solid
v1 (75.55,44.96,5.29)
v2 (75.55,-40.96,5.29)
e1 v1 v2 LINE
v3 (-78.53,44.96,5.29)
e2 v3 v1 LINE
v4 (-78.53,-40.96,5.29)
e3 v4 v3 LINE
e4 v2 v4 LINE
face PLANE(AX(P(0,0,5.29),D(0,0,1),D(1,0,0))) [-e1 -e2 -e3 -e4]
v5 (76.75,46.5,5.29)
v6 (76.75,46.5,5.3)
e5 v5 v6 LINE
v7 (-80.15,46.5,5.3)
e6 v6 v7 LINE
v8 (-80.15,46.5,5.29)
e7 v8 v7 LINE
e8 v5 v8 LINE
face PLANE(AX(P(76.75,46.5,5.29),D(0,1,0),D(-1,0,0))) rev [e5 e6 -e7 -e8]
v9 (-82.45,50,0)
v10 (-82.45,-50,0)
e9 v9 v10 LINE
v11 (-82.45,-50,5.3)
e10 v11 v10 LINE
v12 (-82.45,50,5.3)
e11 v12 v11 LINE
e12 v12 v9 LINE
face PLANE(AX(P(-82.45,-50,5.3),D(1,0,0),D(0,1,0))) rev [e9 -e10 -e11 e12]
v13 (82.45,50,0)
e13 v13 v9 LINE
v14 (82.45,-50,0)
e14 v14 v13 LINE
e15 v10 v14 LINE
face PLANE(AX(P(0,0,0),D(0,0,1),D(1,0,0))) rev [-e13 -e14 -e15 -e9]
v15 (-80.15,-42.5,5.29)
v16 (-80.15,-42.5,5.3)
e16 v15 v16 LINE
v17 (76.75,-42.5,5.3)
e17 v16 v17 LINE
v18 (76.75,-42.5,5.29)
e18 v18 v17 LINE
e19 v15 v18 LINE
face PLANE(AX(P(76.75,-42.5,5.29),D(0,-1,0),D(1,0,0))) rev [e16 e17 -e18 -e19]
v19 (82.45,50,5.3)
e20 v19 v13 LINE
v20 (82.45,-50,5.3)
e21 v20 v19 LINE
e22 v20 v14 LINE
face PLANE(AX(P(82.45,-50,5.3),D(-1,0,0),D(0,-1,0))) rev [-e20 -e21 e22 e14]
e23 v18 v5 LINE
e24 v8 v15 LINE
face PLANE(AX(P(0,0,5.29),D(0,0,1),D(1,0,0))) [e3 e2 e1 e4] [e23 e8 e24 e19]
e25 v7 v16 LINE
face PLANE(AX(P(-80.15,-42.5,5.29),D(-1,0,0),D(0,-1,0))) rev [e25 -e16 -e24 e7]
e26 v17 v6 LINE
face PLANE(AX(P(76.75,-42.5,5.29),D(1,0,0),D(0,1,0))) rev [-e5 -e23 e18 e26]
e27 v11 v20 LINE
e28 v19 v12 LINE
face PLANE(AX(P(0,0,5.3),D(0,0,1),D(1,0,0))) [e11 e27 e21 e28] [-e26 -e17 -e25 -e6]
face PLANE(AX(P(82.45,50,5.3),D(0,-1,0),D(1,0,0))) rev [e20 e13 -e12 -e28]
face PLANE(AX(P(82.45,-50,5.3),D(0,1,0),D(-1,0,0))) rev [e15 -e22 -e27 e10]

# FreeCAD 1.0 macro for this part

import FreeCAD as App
import Part
import Sketcher


def add_polygon(sketch, points):
    """Adds a closed chain of lines whose ends are joined by coincident constraints."""
    first, n = sketch.GeometryCount, len(points)
    for a, b in zip(points, points[1:] + points[:1]):
        sketch.addGeometry(Part.LineSegment(App.Vector(*a, 0), App.Vector(*b, 0)), False)
    for i in range(n):
        sketch.addConstraint(Sketcher.Constraint("Coincident", first + i, 2, first + (i + 1) % n, 1))

doc = App.newDocument("Part")
body = doc.addObject("PartDesign::Body", "Body")

# Sketch on XY plane
sketch1 = body.newObject("Sketcher::SketchObject", "Sketch")
sketch1.AttachmentSupport = (doc.getObject("XY_Plane"), [""])
sketch1.MapMode = "FlatFace"
add_polygon(sketch1, [(-90, 52), (-90, -52), (90, -52), (90, 52)])  # lines 0-3
sketch1.addConstraint([
    Sketcher.Constraint("Vertical", 0),
    Sketcher.Constraint("Horizontal", 1),
    Sketcher.Constraint("Vertical", 2),
    Sketcher.Constraint("Horizontal", 3),
    Sketcher.Constraint("Symmetric", 0, 2, 2, 2, -1, 1),
    Sketcher.Constraint("DistanceX", 1, 1, 1, 2, 180.0),
    Sketcher.Constraint("DistanceY", 0, 2, 0, 1, 104.0),
])
pad1 = body.newObject("PartDesign::Pad", "Pad")
pad1.Profile = sketch1
pad1.Length = 1.6

# Sketch on XY plane
sketch2 = body.newObject("Sketcher::SketchObject", "Sketch001")
sketch2.AttachmentSupport = (doc.getObject("XY_Plane"), [""])
sketch2.MapMode = "FlatFace"
sketch2.AttachmentOffset = App.Placement(App.Vector(0, 0, 1.6), App.Rotation())
sketch2.addGeometry([
    Part.Circle(App.Vector(-87, 49, 0), App.Vector(0, 0, 1), 1.6),
    Part.Circle(App.Vector(87, 49, 0), App.Vector(0, 0, 1), 1.6),
    Part.Circle(App.Vector(87, -49, 0), App.Vector(0, 0, 1), 1.6),
    Part.Circle(App.Vector(-87, -49, 0), App.Vector(0, 0, 1), 1.6),
], False)
sketch2.addConstraint([
    Sketcher.Constraint("Equal", 0, 1),
    Sketcher.Constraint("Equal", 1, 2),
    Sketcher.Constraint("Equal", 2, 3),
    Sketcher.Constraint("Symmetric", 0, 3, 2, 3, -1, 1),
    Sketcher.Constraint("Symmetric", 1, 3, 3, 3, -1, 1),
    Sketcher.Constraint("Symmetric", 0, 3, 1, 3, -2),
    Sketcher.Constraint("Diameter", 0, 3.2),
    Sketcher.Constraint("DistanceX", 0, 3, -1, 1, 87.0),
    Sketcher.Constraint("DistanceY", -1, 1, 0, 3, 49.0),
])
doc.recompute()
hole = body.newObject("PartDesign::Hole", "Hole")
hole.Profile = sketch2
hole.ThreadType = "None"
hole.Diameter = 3.2
hole.DepthType = "ThroughAll"

# Sketch on XY plane
sketch3 = body.newObject("Sketcher::SketchObject", "Sketch002")
sketch3.AttachmentSupport = (doc.getObject("XY_Plane"), [""])
sketch3.MapMode = "FlatFace"
sketch3.AttachmentOffset = App.Placement(App.Vector(0, 0, 1.6), App.Rotation())
add_polygon(sketch3, [(-82, 50), (-82, -50), (82, -50), (82, 50)])  # lines 0-3
sketch3.addConstraint([
    Sketcher.Constraint("Vertical", 0),
    Sketcher.Constraint("Horizontal", 1),
    Sketcher.Constraint("Vertical", 2),
    Sketcher.Constraint("Horizontal", 3),
    Sketcher.Constraint("Symmetric", 0, 2, 2, 2, -1, 1),
    Sketcher.Constraint("DistanceY", 0, 2, 0, 1, 100.0),
    Sketcher.Constraint("DistanceX", 1, 1, 1, 2, 164.9),
])
pad2 = body.newObject("PartDesign::Pad", "Pad001")
pad2.Profile = sketch3
pad2.Length = 3.7

# Sketch on XY plane
sketch4 = body.newObject("Sketcher::SketchObject", "Sketch003")
sketch4.AttachmentSupport = (doc.getObject("XY_Plane"), [""])
sketch4.MapMode = "FlatFace"
sketch4.AttachmentOffset = App.Placement(App.Vector(0, 0, 5.3), App.Rotation())
add_polygon(sketch4, [(-80, 46), (-80, -42), (77, -42), (77, 46)])  # lines 0-3
sketch4.addConstraint([
    Sketcher.Constraint("Vertical", 0),
    Sketcher.Constraint("Horizontal", 1),
    Sketcher.Constraint("Vertical", 2),
    Sketcher.Constraint("Horizontal", 3),
    Sketcher.Constraint("DistanceY", 0, 2, 0, 1, 89.0),
    Sketcher.Constraint("DistanceX", 1, 1, 1, 2, 156.9),
    Sketcher.Constraint("DistanceY", 0, 2, -1, 1, 42.5),
    Sketcher.Constraint("DistanceX", 0, 2, -1, 1, 80.15),
])
pocket1 = body.newObject("PartDesign::Pocket", "Pocket")
pocket1.Profile = sketch4
pocket1.Length = 0.01

# Sketch on XY plane
sketch5 = body.newObject("Sketcher::SketchObject", "Sketch004")
sketch5.AttachmentSupport = (doc.getObject("XY_Plane"), [""])
sketch5.MapMode = "FlatFace"
sketch5.AttachmentOffset = App.Placement(App.Vector(0, 0, 1.6), App.Rotation())
sketch5.addGeometry([
    Part.Circle(App.Vector(88.5, -41.9, 0), App.Vector(0, 0, 1), 0.5),  # 0
    Part.Circle(App.Vector(86, -41.9, 0), App.Vector(0, 0, 1), 0.5),  # 1
    Part.Circle(App.Vector(86, -39.4, 0), App.Vector(0, 0, 1), 0.5),  # 2
    Part.Circle(App.Vector(86, -36.8, 0), App.Vector(0, 0, 1), 0.5),  # 3
    Part.Circle(App.Vector(86, -34.3, 0), App.Vector(0, 0, 1), 0.5),  # 4
    Part.Circle(App.Vector(88.5, -39.4, 0), App.Vector(0, 0, 1), 0.5),  # 5
    Part.Circle(App.Vector(88.5, -36.8, 0), App.Vector(0, 0, 1), 0.5),  # 6
    Part.Circle(App.Vector(88.5, -34.3, 0), App.Vector(0, 0, 1), 0.5),  # 7
    Part.Circle(App.Vector(88.5, -24.1, 0), App.Vector(0, 0, 1), 0.5),  # 8
    Part.Circle(App.Vector(86, -24.1, 0), App.Vector(0, 0, 1), 0.5),  # 9
    Part.Circle(App.Vector(86, -21.6, 0), App.Vector(0, 0, 1), 0.5),  # 10
    Part.Circle(App.Vector(86, -19.1, 0), App.Vector(0, 0, 1), 0.5),  # 11
    Part.Circle(App.Vector(86, -16.5, 0), App.Vector(0, 0, 1), 0.5),  # 12
    Part.Circle(App.Vector(86, -14, 0), App.Vector(0, 0, 1), 0.5),  # 13
    Part.Circle(App.Vector(86, -11.4, 0), App.Vector(0, 0, 1), 0.5),  # 14
    Part.Circle(App.Vector(86, -8.9, 0), App.Vector(0, 0, 1), 0.5),  # 15
    Part.Circle(App.Vector(86, -6.3, 0), App.Vector(0, 0, 1), 0.5),  # 16
    Part.Circle(App.Vector(86, -3.8, 0), App.Vector(0, 0, 1), 0.5),  # 17
    Part.Circle(App.Vector(86, -1.3, 0), App.Vector(0, 0, 1), 0.5),  # 18
    Part.Circle(App.Vector(86, 1.3, 0), App.Vector(0, 0, 1), 0.5),  # 19
    Part.Circle(App.Vector(86, 3.8, 0), App.Vector(0, 0, 1), 0.5),  # 20
    Part.Circle(App.Vector(86, 6.3, 0), App.Vector(0, 0, 1), 0.5),  # 21
    Part.Circle(App.Vector(86, 8.9, 0), App.Vector(0, 0, 1), 0.5),  # 22
    Part.Circle(App.Vector(86, 11.4, 0), App.Vector(0, 0, 1), 0.5),  # 23
    Part.Circle(App.Vector(86, 14, 0), App.Vector(0, 0, 1), 0.5),  # 24
    Part.Circle(App.Vector(86, 16.5, 0), App.Vector(0, 0, 1), 0.5),  # 25
    Part.Circle(App.Vector(86, 19.1, 0), App.Vector(0, 0, 1), 0.5),  # 26
    Part.Circle(App.Vector(86, 21.6, 0), App.Vector(0, 0, 1), 0.5),  # 27
    Part.Circle(App.Vector(86, 24.1, 0), App.Vector(0, 0, 1), 0.5),  # 28
    Part.Circle(App.Vector(88.5, -21.6, 0), App.Vector(0, 0, 1), 0.5),  # 29
    Part.Circle(App.Vector(88.5, -19.1, 0), App.Vector(0, 0, 1), 0.5),  # 30
    Part.Circle(App.Vector(88.5, -16.5, 0), App.Vector(0, 0, 1), 0.5),  # 31
    Part.Circle(App.Vector(88.5, -14, 0), App.Vector(0, 0, 1), 0.5),  # 32
    Part.Circle(App.Vector(88.5, -11.4, 0), App.Vector(0, 0, 1), 0.5),  # 33
    Part.Circle(App.Vector(88.5, -8.9, 0), App.Vector(0, 0, 1), 0.5),  # 34
    Part.Circle(App.Vector(88.5, -6.3, 0), App.Vector(0, 0, 1), 0.5),  # 35
    Part.Circle(App.Vector(88.5, -3.8, 0), App.Vector(0, 0, 1), 0.5),  # 36
    Part.Circle(App.Vector(88.5, -1.3, 0), App.Vector(0, 0, 1), 0.5),  # 37
    Part.Circle(App.Vector(88.5, 1.3, 0), App.Vector(0, 0, 1), 0.5),  # 38
    Part.Circle(App.Vector(88.5, 3.8, 0), App.Vector(0, 0, 1), 0.5),  # 39
    Part.Circle(App.Vector(88.5, 6.3, 0), App.Vector(0, 0, 1), 0.5),  # 40
    Part.Circle(App.Vector(88.5, 8.9, 0), App.Vector(0, 0, 1), 0.5),  # 41
    Part.Circle(App.Vector(88.5, 11.4, 0), App.Vector(0, 0, 1), 0.5),  # 42
    Part.Circle(App.Vector(88.5, 14, 0), App.Vector(0, 0, 1), 0.5),  # 43
    Part.Circle(App.Vector(88.5, 16.5, 0), App.Vector(0, 0, 1), 0.5),  # 44
    Part.Circle(App.Vector(88.5, 19.1, 0), App.Vector(0, 0, 1), 0.5),  # 45
    Part.Circle(App.Vector(88.5, 21.6, 0), App.Vector(0, 0, 1), 0.5),  # 46
    Part.Circle(App.Vector(88.5, 24.1, 0), App.Vector(0, 0, 1), 0.5),  # 47
    Part.Circle(App.Vector(88.5, 34.3, 0), App.Vector(0, 0, 1), 0.5),  # 48
    Part.Circle(App.Vector(86, 34.3, 0), App.Vector(0, 0, 1), 0.5),  # 49
    Part.Circle(App.Vector(86, 36.8, 0), App.Vector(0, 0, 1), 0.5),  # 50
    Part.Circle(App.Vector(86, 39.4, 0), App.Vector(0, 0, 1), 0.5),  # 51
    Part.Circle(App.Vector(86, 41.9, 0), App.Vector(0, 0, 1), 0.5),  # 52
    Part.Circle(App.Vector(88.5, 36.8, 0), App.Vector(0, 0, 1), 0.5),  # 53
    Part.Circle(App.Vector(88.5, 39.4, 0), App.Vector(0, 0, 1), 0.5),  # 54
    Part.Circle(App.Vector(88.5, 41.9, 0), App.Vector(0, 0, 1), 0.5),  # 55
], False)
sketch5.addConstraint([
    Sketcher.Constraint("Equal", 0, 1),
    Sketcher.Constraint("Equal", 1, 2),
    Sketcher.Constraint("Equal", 2, 3),
    Sketcher.Constraint("Equal", 3, 4),
    Sketcher.Constraint("Equal", 4, 5),
    Sketcher.Constraint("Equal", 5, 6),
    Sketcher.Constraint("Equal", 6, 7),
    Sketcher.Constraint("Equal", 7, 8),
    Sketcher.Constraint("Equal", 8, 9),
    Sketcher.Constraint("Equal", 9, 10),
    Sketcher.Constraint("Equal", 10, 11),
    Sketcher.Constraint("Equal", 11, 12),
    Sketcher.Constraint("Equal", 12, 13),
    Sketcher.Constraint("Equal", 13, 14),
    Sketcher.Constraint("Equal", 14, 15),
    Sketcher.Constraint("Equal", 15, 16),
    Sketcher.Constraint("Equal", 16, 17),
    Sketcher.Constraint("Equal", 17, 18),
    Sketcher.Constraint("Equal", 18, 19),
    Sketcher.Constraint("Equal", 19, 20),
    Sketcher.Constraint("Equal", 20, 21),
    Sketcher.Constraint("Equal", 21, 22),
    Sketcher.Constraint("Equal", 22, 23),
    Sketcher.Constraint("Equal", 23, 24),
    Sketcher.Constraint("Equal", 24, 25),
    Sketcher.Constraint("Equal", 25, 26),
    Sketcher.Constraint("Equal", 26, 27),
    Sketcher.Constraint("Equal", 27, 28),
    Sketcher.Constraint("Equal", 28, 29),
    Sketcher.Constraint("Equal", 29, 30),
    Sketcher.Constraint("Equal", 30, 31),
    Sketcher.Constraint("Equal", 31, 32),
    Sketcher.Constraint("Equal", 32, 33),
    Sketcher.Constraint("Equal", 33, 34),
    Sketcher.Constraint("Equal", 34, 35),
    Sketcher.Constraint("Equal", 35, 36),
    Sketcher.Constraint("Equal", 36, 37),
    Sketcher.Constraint("Equal", 37, 38),
    Sketcher.Constraint("Equal", 38, 39),
    Sketcher.Constraint("Equal", 39, 40),
    Sketcher.Constraint("Equal", 40, 41),
    Sketcher.Constraint("Equal", 41, 42),
    Sketcher.Constraint("Equal", 42, 43),
    Sketcher.Constraint("Equal", 43, 44),
    Sketcher.Constraint("Equal", 44, 45),
    Sketcher.Constraint("Equal", 45, 46),
    Sketcher.Constraint("Equal", 46, 47),
    Sketcher.Constraint("Equal", 47, 48),
    Sketcher.Constraint("Equal", 48, 49),
    Sketcher.Constraint("Equal", 49, 50),
    Sketcher.Constraint("Equal", 50, 51),
    Sketcher.Constraint("Equal", 51, 52),
    Sketcher.Constraint("Equal", 52, 53),
    Sketcher.Constraint("Equal", 53, 54),
    Sketcher.Constraint("Equal", 54, 55),
    Sketcher.Constraint("Symmetric", 18, 3, 19, 3, -1),
    Sketcher.Constraint("Symmetric", 17, 3, 20, 3, -1),
    Sketcher.Constraint("Symmetric", 16, 3, 21, 3, -1),
    Sketcher.Constraint("Symmetric", 15, 3, 22, 3, -1),
    Sketcher.Constraint("Symmetric", 14, 3, 23, 3, -1),
    Sketcher.Constraint("Symmetric", 13, 3, 24, 3, -1),
    Sketcher.Constraint("Symmetric", 12, 3, 25, 3, -1),
    Sketcher.Constraint("Symmetric", 11, 3, 26, 3, -1),
    Sketcher.Constraint("Symmetric", 10, 3, 27, 3, -1),
    Sketcher.Constraint("Symmetric", 9, 3, 28, 3, -1),
    Sketcher.Constraint("Symmetric", 37, 3, 38, 3, -1),
    Sketcher.Constraint("Symmetric", 36, 3, 39, 3, -1),
    Sketcher.Constraint("Symmetric", 35, 3, 40, 3, -1),
    Sketcher.Constraint("Symmetric", 34, 3, 41, 3, -1),
    Sketcher.Constraint("Symmetric", 33, 3, 42, 3, -1),
    Sketcher.Constraint("Symmetric", 32, 3, 43, 3, -1),
    Sketcher.Constraint("Symmetric", 31, 3, 44, 3, -1),
    Sketcher.Constraint("Symmetric", 30, 3, 45, 3, -1),
    Sketcher.Constraint("Symmetric", 29, 3, 46, 3, -1),
    Sketcher.Constraint("Symmetric", 8, 3, 47, 3, -1),
    Sketcher.Constraint("Symmetric", 7, 3, 48, 3, -1),
    Sketcher.Constraint("Symmetric", 4, 3, 49, 3, -1),
    Sketcher.Constraint("Symmetric", 3, 3, 50, 3, -1),
    Sketcher.Constraint("Symmetric", 2, 3, 51, 3, -1),
    Sketcher.Constraint("Symmetric", 1, 3, 52, 3, -1),
    Sketcher.Constraint("Symmetric", 6, 3, 53, 3, -1),
    Sketcher.Constraint("Symmetric", 5, 3, 54, 3, -1),
    Sketcher.Constraint("Symmetric", 0, 3, 55, 3, -1),
    Sketcher.Constraint("Horizontal", 0, 3, 1, 3),
    Sketcher.Constraint("Horizontal", 2, 3, 5, 3),
    Sketcher.Constraint("Horizontal", 3, 3, 6, 3),
    Sketcher.Constraint("Horizontal", 4, 3, 7, 3),
    Sketcher.Constraint("Horizontal", 8, 3, 9, 3),
    Sketcher.Constraint("Horizontal", 10, 3, 29, 3),
    Sketcher.Constraint("Horizontal", 11, 3, 30, 3),
    Sketcher.Constraint("Horizontal", 12, 3, 31, 3),
    Sketcher.Constraint("Horizontal", 13, 3, 32, 3),
    Sketcher.Constraint("Horizontal", 14, 3, 33, 3),
    Sketcher.Constraint("Horizontal", 15, 3, 34, 3),
    Sketcher.Constraint("Horizontal", 16, 3, 35, 3),
    Sketcher.Constraint("Horizontal", 17, 3, 36, 3),
    Sketcher.Constraint("Horizontal", 18, 3, 37, 3),
    Sketcher.Constraint("Vertical", 1, 3, 2, 3),
    Sketcher.Constraint("Vertical", 2, 3, 3, 3),
    Sketcher.Constraint("Vertical", 3, 3, 4, 3),
    Sketcher.Constraint("Vertical", 0, 3, 5, 3),
    Sketcher.Constraint("Vertical", 5, 3, 6, 3),
    Sketcher.Constraint("Vertical", 6, 3, 7, 3),
    Sketcher.Constraint("Vertical", 7, 3, 8, 3),
    Sketcher.Constraint("Vertical", 4, 3, 9, 3),
    Sketcher.Constraint("Vertical", 9, 3, 10, 3),
    Sketcher.Constraint("Vertical", 10, 3, 11, 3),
    Sketcher.Constraint("Vertical", 11, 3, 12, 3),
    Sketcher.Constraint("Vertical", 12, 3, 13, 3),
    Sketcher.Constraint("Vertical", 13, 3, 14, 3),
    Sketcher.Constraint("Vertical", 14, 3, 15, 3),
    Sketcher.Constraint("Vertical", 15, 3, 16, 3),
    Sketcher.Constraint("Vertical", 16, 3, 17, 3),
    Sketcher.Constraint("Vertical", 17, 3, 18, 3),
    Sketcher.Constraint("Vertical", 8, 3, 29, 3),
    Sketcher.Constraint("Vertical", 29, 3, 30, 3),
    Sketcher.Constraint("Vertical", 30, 3, 31, 3),
    Sketcher.Constraint("Vertical", 31, 3, 32, 3),
    Sketcher.Constraint("Vertical", 32, 3, 33, 3),
    Sketcher.Constraint("Vertical", 33, 3, 34, 3),
    Sketcher.Constraint("Vertical", 34, 3, 35, 3),
    Sketcher.Constraint("Vertical", 35, 3, 36, 3),
    Sketcher.Constraint("Vertical", 36, 3, 37, 3),
    Sketcher.Constraint("Diameter", 0, 1.0),
    Sketcher.Constraint("DistanceX", -1, 1, 0, 3, 88.5),
    Sketcher.Constraint("DistanceY", 6, 3, 8, 3, 12.7),
    Sketcher.Constraint("DistanceY", 4, 3, 10, 3, 12.7),
    Sketcher.Constraint("DistanceY", 9, 3, 14, 3, 12.7),
    Sketcher.Constraint("DistanceY", 10, 3, 15, 3, 12.7),
    Sketcher.Constraint("DistanceY", 11, 3, 16, 3, 12.7),
    Sketcher.Constraint("DistanceY", 12, 3, 17, 3, 12.7),
    Sketcher.Constraint("DistanceY", 13, 3, 18, 3, 12.7),
    Sketcher.Constraint("DistanceY", 14, 3, 19, 3, 12.7),
    Sketcher.Constraint("DistanceY", 15, 3, 20, 3, 12.7),
    Sketcher.Constraint("DistanceY", 16, 3, 21, 3, 12.7),
    Sketcher.Constraint("DistanceY", 0, 3, -1, 1, 41.91),
    Sketcher.Constraint("DistanceX", -1, 1, 1, 3, 85.96),
    Sketcher.Constraint("DistanceY", 2, 3, -1, 1, 39.37),
    Sketcher.Constraint("DistanceY", 3, 3, -1, 1, 36.83),
    Sketcher.Constraint("DistanceY", 4, 3, -1, 1, 34.29),
])
doc.recompute()
hole2 = body.newObject("PartDesign::Hole", "Hole001")
hole2.Profile = sketch5
hole2.ThreadType = "None"
hole2.Diameter = 1
hole2.DepthType = "ThroughAll"

# Sketch on XY plane
sketch6 = body.newObject("Sketcher::SketchObject", "Sketch005")
sketch6.AttachmentSupport = (doc.getObject("XY_Plane"), [""])
sketch6.MapMode = "FlatFace"
sketch6.AttachmentOffset = App.Placement(App.Vector(0, 0, 5.3), App.Rotation())
add_polygon(sketch6, [(-90, 52), (-90, -52), (90, -52), (90, 52)])  # lines 0-3
add_polygon(sketch6, [(82, -50), (-82, -50), (-82, 50), (82, 50)])  # lines 4-7
sketch6.addConstraint([
    Sketcher.Constraint("Vertical", 0),
    Sketcher.Constraint("Horizontal", 1),
    Sketcher.Constraint("Vertical", 2),
    Sketcher.Constraint("Horizontal", 3),
    Sketcher.Constraint("Horizontal", 4),
    Sketcher.Constraint("Vertical", 5),
    Sketcher.Constraint("Horizontal", 6),
    Sketcher.Constraint("Vertical", 7),
    Sketcher.Constraint("Symmetric", 0, 2, 2, 2, -1, 1),
    Sketcher.Constraint("Symmetric", 4, 2, 6, 2, -1, 1),
    Sketcher.Constraint("DistanceX", 1, 1, 1, 2, 180.0),
    Sketcher.Constraint("DistanceY", 0, 2, 0, 1, 104.0),
    Sketcher.Constraint("DistanceY", 5, 1, 5, 2, 100.0),
    Sketcher.Constraint("DistanceX", 4, 2, 4, 1, 164.9),
])
pocket2 = body.newObject("PartDesign::Pocket", "Pocket001")
pocket2.Profile = sketch6
pocket2.Type = "ThroughAll"

doc.recompute()
